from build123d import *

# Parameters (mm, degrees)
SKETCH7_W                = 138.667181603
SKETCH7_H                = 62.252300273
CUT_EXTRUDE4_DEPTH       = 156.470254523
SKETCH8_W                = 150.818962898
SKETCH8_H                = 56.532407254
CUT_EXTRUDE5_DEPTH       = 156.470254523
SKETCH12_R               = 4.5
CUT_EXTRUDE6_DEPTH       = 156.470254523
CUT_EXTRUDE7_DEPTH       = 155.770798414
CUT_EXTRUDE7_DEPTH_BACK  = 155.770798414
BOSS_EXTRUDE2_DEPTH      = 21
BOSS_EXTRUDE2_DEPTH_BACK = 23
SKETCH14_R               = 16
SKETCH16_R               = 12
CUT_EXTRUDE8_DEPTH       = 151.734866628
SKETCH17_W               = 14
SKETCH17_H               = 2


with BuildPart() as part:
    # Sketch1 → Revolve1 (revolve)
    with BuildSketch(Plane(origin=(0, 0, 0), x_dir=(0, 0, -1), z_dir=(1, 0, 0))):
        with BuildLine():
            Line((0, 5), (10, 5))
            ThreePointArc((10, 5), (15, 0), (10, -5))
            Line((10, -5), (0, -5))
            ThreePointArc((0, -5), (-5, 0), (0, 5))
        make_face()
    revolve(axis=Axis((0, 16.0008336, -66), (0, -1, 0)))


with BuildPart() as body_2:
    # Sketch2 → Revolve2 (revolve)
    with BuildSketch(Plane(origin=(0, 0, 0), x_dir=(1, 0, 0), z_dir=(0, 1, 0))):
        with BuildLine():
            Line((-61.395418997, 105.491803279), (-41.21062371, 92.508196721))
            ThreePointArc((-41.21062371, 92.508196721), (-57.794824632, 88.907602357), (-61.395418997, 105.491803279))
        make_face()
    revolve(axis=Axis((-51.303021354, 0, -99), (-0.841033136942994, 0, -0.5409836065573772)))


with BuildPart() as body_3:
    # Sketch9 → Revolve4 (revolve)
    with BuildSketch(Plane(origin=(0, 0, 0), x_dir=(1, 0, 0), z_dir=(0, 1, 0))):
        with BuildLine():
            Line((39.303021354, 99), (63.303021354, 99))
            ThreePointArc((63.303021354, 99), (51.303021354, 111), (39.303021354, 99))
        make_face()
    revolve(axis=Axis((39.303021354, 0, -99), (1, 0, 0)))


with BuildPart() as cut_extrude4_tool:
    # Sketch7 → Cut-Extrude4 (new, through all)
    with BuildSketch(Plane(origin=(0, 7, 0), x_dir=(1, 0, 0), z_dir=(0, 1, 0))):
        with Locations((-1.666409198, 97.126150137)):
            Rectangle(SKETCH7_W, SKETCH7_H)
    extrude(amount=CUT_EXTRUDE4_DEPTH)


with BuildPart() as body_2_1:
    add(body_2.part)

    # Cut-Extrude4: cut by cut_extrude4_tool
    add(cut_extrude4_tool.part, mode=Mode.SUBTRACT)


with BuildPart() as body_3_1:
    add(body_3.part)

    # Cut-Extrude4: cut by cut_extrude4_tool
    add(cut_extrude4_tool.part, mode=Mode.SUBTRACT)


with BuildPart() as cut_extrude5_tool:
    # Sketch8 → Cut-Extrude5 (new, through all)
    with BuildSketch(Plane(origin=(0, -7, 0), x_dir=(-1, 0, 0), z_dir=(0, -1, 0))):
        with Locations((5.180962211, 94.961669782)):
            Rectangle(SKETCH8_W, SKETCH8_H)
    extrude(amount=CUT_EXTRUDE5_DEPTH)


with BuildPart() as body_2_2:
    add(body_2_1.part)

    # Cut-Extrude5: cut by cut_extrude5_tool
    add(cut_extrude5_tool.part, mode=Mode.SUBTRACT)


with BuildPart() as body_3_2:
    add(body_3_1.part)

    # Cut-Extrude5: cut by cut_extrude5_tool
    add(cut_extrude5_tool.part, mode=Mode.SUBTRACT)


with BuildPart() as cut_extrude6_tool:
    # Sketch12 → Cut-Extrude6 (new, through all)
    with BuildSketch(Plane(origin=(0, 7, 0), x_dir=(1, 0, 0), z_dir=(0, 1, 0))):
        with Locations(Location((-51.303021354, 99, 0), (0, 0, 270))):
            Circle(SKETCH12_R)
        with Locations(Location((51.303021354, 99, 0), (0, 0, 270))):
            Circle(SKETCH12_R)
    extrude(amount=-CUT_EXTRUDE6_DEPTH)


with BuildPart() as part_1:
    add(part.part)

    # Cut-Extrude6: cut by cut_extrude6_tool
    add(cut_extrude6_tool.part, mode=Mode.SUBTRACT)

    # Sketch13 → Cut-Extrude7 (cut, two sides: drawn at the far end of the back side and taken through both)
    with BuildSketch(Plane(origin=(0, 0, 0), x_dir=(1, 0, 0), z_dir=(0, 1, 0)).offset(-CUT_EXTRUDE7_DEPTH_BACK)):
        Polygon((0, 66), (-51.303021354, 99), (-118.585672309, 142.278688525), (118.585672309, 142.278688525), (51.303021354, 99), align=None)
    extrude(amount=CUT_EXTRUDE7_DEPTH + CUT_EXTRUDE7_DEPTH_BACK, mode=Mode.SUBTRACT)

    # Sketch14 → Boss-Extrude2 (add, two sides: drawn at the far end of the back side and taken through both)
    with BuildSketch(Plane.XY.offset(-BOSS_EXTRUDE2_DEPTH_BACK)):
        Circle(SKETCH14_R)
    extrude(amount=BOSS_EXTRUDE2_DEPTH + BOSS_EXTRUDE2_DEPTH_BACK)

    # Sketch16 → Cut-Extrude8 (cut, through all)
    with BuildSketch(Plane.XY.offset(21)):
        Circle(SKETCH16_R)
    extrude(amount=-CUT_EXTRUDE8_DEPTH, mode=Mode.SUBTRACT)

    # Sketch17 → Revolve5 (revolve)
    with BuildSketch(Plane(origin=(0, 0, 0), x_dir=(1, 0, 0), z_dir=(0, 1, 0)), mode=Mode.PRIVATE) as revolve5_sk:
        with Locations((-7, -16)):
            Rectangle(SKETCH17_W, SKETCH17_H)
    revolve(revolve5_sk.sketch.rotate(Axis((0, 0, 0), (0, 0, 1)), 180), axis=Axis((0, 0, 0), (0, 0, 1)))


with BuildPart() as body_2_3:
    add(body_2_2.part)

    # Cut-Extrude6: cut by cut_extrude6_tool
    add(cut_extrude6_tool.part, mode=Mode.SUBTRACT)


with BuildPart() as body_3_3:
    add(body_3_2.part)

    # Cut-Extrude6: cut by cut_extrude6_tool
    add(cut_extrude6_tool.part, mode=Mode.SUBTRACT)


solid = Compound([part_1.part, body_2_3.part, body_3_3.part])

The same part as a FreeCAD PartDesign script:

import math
import FreeCAD as App
import Part
import Sketcher


def add_polygon(sketch, points):
    """Adds a closed chain of lines whose ends are joined by coincident constraints."""
    first, n = sketch.GeometryCount, len(points)
    for a, b in zip(points, points[1:] + points[:1]):
        sketch.addGeometry(Part.LineSegment(App.Vector(*a, 0), App.Vector(*b, 0)), False)
    for i in range(n):
        sketch.addConstraint(Sketcher.Constraint("Coincident", first + i, 2, first + (i + 1) % n, 1))

doc = App.newDocument("Part")
params = doc.addObject("Spreadsheet::Sheet", "Params")
for row, (alias, value) in enumerate([
    ("sketch1_radius", "5 mm"),
    ("revolution_angle", "360 deg"),
    ("sketch2_radius", "12 mm"),
    ("revolution2_angle", "360 deg"),
    ("sketch3_radius", "12 mm"),
    ("revolution3_angle", "360 deg"),
    ("pad1_length", "156.470255 mm"),
    ("pad2_length", "156.470255 mm"),
    ("sketch6_diameter", "9 mm"),
    ("pad3_length", "156.470255 mm"),
    ("sketch7_length", "61 mm"),
    ("sketch7_length2", "80 mm"),
    ("sketch8_diameter", "32 mm"),
    ("pad4_length", "21 mm"),
    ("pad4_length2", "23 mm"),
    ("sketch9_diameter", "24 mm"),
    ("sketch10_width", "14 mm"),
    ("sketch10_height", "2 mm"),
    ("revolution4_angle", "360 deg"),
], start=1):
    params.set(f"A{row}", alias)
    params.set(f"B{row}", "=" + value)
    params.setAlias(f"B{row}", alias)

body = doc.addObject("PartDesign::Body", "Body")

# Sketch on YZ plane
sketch1 = body.newObject("Sketcher::SketchObject", "Sketch")
sketch1.AttachmentSupport = (doc.getObject("YZ_Plane"), [""])
sketch1.MapMode = "FlatFace"
sketch1.addGeometry([
    Part.LineSegment(App.Vector(5, -10, 0), App.Vector(5, 0, 0)),
    Part.ArcOfCircle(Part.Circle(App.Vector(0, 0, 0), App.Vector(0, 0, 1), 5), math.radians(0), math.radians(180)),
    Part.LineSegment(App.Vector(-5, 0, 0), App.Vector(-5, -10, 0)),
    Part.ArcOfCircle(Part.Circle(App.Vector(0, -10, 0), App.Vector(0, 0, 1), 5), math.radians(180), math.radians(360)),
], False)
sketch1.addGeometry(Part.LineSegment(App.Vector(5, -66, 0), App.Vector(-5, -66, 0)), True)  # axis
sketch1.addConstraint([
    Sketcher.Constraint("Tangent", 0, 2, 1, 1),
    Sketcher.Constraint("Tangent", 1, 2, 2, 1),
    Sketcher.Constraint("Tangent", 2, 2, 3, 1),
    Sketcher.Constraint("Tangent", 3, 2, 0, 1),
    Sketcher.Constraint("Vertical", 0),
    Sketcher.Constraint("Vertical", 2),
    Sketcher.Constraint("Horizontal", 4),
    Sketcher.Constraint("Coincident", 1, 3, -1, 1),
    Sketcher.Constraint("Vertical", 3, 2, 4, 1),
    Sketcher.Constraint("Vertical", 2, 2, 4, 2),
    Sketcher.Constraint("Equal", 4, 0),
    Sketcher.Constraint("Radius", 1, 5.0),
    Sketcher.Constraint("DistanceY", 4, 1, -1, 1, 66.0),
])
sketch1.setExpression("Constraints[11]", "Params.sketch1_radius")
revolution = body.newObject("PartDesign::Revolution", "Revolution")
revolution.Profile = sketch1
revolution.ReferenceAxis = (sketch1, ["Axis0"])
revolution.setExpression("Angle", "Params.revolution_angle")
body2 = doc.addObject("PartDesign::Body", "Body001")

# Sketch on XZ plane
sketch2 = body2.newObject("Sketcher::SketchObject", "Sketch001")
sketch2.AttachmentSupport = (doc.getObject("XZ_Plane001"), [""])
sketch2.MapMode = "FlatFace"
sketch2.addGeometry([
    Part.LineSegment(App.Vector(-41, -93, 0), App.Vector(-61, -105, 0)),
    Part.ArcOfCircle(Part.Circle(App.Vector(-51, -99, 0), App.Vector(0, 0, 1), 12), math.radians(33), math.radians(213)),
], False)
sketch2.addGeometry(Part.LineSegment(App.Vector(-41, -93, 0), App.Vector(-61, -105, 0)), True)  # axis
sketch2.addConstraint([
    Sketcher.Constraint("Coincident", 0, 1, 1, 1),
    Sketcher.Constraint("Coincident", 1, 2, 0, 2),
    Sketcher.Constraint("Coincident", 2, 1, 0, 1),
    Sketcher.Constraint("Coincident", 2, 2, 1, 2),
    Sketcher.Constraint("Radius", 1, 12.0),
    Sketcher.Constraint("DistanceY", 1, 3, -1, 1, 99.0),
    Sketcher.Constraint("DistanceX", 1, 3, -1, 1, 51.303021),
    Sketcher.Constraint("DistanceX", 1, 2, -1, 1, 61.395419),
    Sketcher.Constraint("DistanceX", 0, 1, -1, 1, 41.210624),
])
sketch2.setExpression("Constraints[4]", "Params.sketch2_radius")
revolution2 = body2.newObject("PartDesign::Revolution", "Revolution001")
revolution2.Profile = sketch2
revolution2.ReferenceAxis = (sketch2, ["Axis0"])
revolution2.setExpression("Angle", "Params.revolution2_angle")
body3 = doc.addObject("PartDesign::Body", "Body002")

# Sketch on XZ plane
sketch3 = body3.newObject("Sketcher::SketchObject", "Sketch002")
sketch3.AttachmentSupport = (doc.getObject("XZ_Plane002"), [""])
sketch3.MapMode = "FlatFace"
sketch3.addGeometry([
    Part.LineSegment(App.Vector(39, -99, 0), App.Vector(63, -99, 0)),
    Part.ArcOfCircle(Part.Circle(App.Vector(51, -99, 0), App.Vector(0, 0, 1), 12), math.radians(180), math.radians(360)),
], False)
sketch3.addGeometry(Part.LineSegment(App.Vector(39, -99, 0), App.Vector(63, -99, 0)), True)  # axis
sketch3.addConstraint([
    Sketcher.Constraint("Coincident", 0, 1, 1, 1),
    Sketcher.Constraint("Coincident", 1, 2, 0, 2),
    Sketcher.Constraint("Horizontal", 0),
    Sketcher.Constraint("Horizontal", 2),
    Sketcher.Constraint("Coincident", 2, 1, 0, 1),
    Sketcher.Constraint("Horizontal", 1, 3, 0, 1),
    Sketcher.Constraint("Equal", 0, 2),
    Sketcher.Constraint("Radius", 1, 12.0),
    Sketcher.Constraint("DistanceY", 1, 3, -1, 1, 99.0),
    Sketcher.Constraint("DistanceX", -1, 1, 1, 3, 51.303021),
])
sketch3.setExpression("Constraints[7]", "Params.sketch3_radius")
revolution3 = body3.newObject("PartDesign::Revolution", "Revolution002")
revolution3.Profile = sketch3
revolution3.ReferenceAxis = (sketch3, ["Axis0"])
revolution3.setExpression("Angle", "Params.revolution3_angle")
body4 = doc.addObject("PartDesign::Body", "Body003")

# Sketch on XZ plane
sketch4 = body4.newObject("Sketcher::SketchObject", "Sketch003")
sketch4.AttachmentSupport = (doc.getObject("XZ_Plane003"), [""])
sketch4.MapMode = "FlatFace"
sketch4.AttachmentOffset = App.Placement(App.Vector(0, 0, -7), App.Rotation())
add_polygon(sketch4, [(-71, -128), (-71, -66), (68, -66), (68, -128)])  # lines 0-3
sketch4.addConstraint([
    Sketcher.Constraint("Vertical", 0),
    Sketcher.Constraint("Horizontal", 1),
    Sketcher.Constraint("Vertical", 2),
    Sketcher.Constraint("Horizontal", 3),
    Sketcher.Constraint("DistanceX", 0, 2, -1, 1, 71.0),
    Sketcher.Constraint("DistanceY", 0, 2, -1, 1, 66.0),
    Sketcher.Constraint("DistanceY", 0, 1, 0, 2, 62.2523),
    Sketcher.Constraint("DistanceX", 1, 1, 1, 2, 138.667182),
])
pad1 = body4.newObject("PartDesign::Pad", "Pad")
pad1.Profile = sketch4
pad1.setExpression("Length", "Params.pad1_length")
pad1.Reversed = True
doc.recompute()

body5 = doc.addObject("PartDesign::Body", "Body004")
body5.BaseFeature = body4
boolean = body2.newObject("PartDesign::Boolean", "Boolean")
boolean.Type = "Cut"
boolean.addObjects([body5])
doc.recompute()

boolean2 = body3.newObject("PartDesign::Boolean", "Boolean001")
boolean2.Type = "Cut"
boolean2.addObjects([body4])
body6 = doc.addObject("PartDesign::Body", "Body005")

# Sketch on XZ plane
sketch5 = body6.newObject("Sketcher::SketchObject", "Sketch004")
sketch5.AttachmentSupport = (doc.getObject("XZ_Plane005"), [""])
sketch5.MapMode = "FlatFace"
sketch5.AttachmentOffset = App.Placement(App.Vector(0, 0, 7), App.Rotation())
add_polygon(sketch5, [(70, -123), (70, -67), (-81, -67), (-81, -123)])  # lines 0-3
sketch5.addConstraint([
    Sketcher.Constraint("Vertical", 0),
    Sketcher.Constraint("Horizontal", 1),
    Sketcher.Constraint("Vertical", 2),
    Sketcher.Constraint("Horizontal", 3),
    Sketcher.Constraint("DistanceX", 1, 2, 1, 1, 150.818963),
    Sketcher.Constraint("DistanceY", 0, 1, 0, 2, 56.532407),
    Sketcher.Constraint("DistanceX", -1, 1, 0, 2, 70.228519),
    Sketcher.Constraint("DistanceY", 0, 2, -1, 1, 66.695466),
])
pad2 = body6.newObject("PartDesign::Pad", "Pad001")
pad2.Profile = sketch5
pad2.setExpression("Length", "Params.pad2_length")
doc.recompute()

body7 = doc.addObject("PartDesign::Body", "Body006")
body7.BaseFeature = body6
boolean3 = body2.newObject("PartDesign::Boolean", "Boolean002")
boolean3.Type = "Cut"
boolean3.addObjects([body7])
doc.recompute()

boolean4 = body3.newObject("PartDesign::Boolean", "Boolean003")
boolean4.Type = "Cut"
boolean4.addObjects([body6])
body8 = doc.addObject("PartDesign::Body", "Body007")
body8.AllowCompound = True

# Sketch on XZ plane
sketch6 = body8.newObject("Sketcher::SketchObject", "Sketch005")
sketch6.AttachmentSupport = (doc.getObject("XZ_Plane007"), [""])
sketch6.MapMode = "FlatFace"
sketch6.AttachmentOffset = App.Placement(App.Vector(0, 0, -7), App.Rotation())
sketch6.addGeometry([
    Part.Circle(App.Vector(-51.3, -99, 0), App.Vector(0, 0, 1), 4.5),
    Part.Circle(App.Vector(51.3, -99, 0), App.Vector(0, 0, 1), 4.5),
], False)
sketch6.addConstraint([
    Sketcher.Constraint("Equal", 0, 1),
    Sketcher.Constraint("Symmetric", 0, 3, 1, 3, -2),
    Sketcher.Constraint("Diameter", 0, 9.0),
    Sketcher.Constraint("DistanceY", 0, 3, -1, 1, 99.0),
    Sketcher.Constraint("DistanceX", 0, 3, -1, 1, 51.303021),
])
sketch6.setExpression("Constraints[2]", "Params.sketch6_diameter")
pad3 = body8.newObject("PartDesign::Pad", "Pad002")
pad3.Profile = sketch6
pad3.setExpression("Length", "Params.pad3_length")
doc.recompute()

body9 = doc.addObject("PartDesign::Body", "Body008")
body9.BaseFeature = body8
boolean5 = body.newObject("PartDesign::Boolean", "Boolean004")
boolean5.Type = "Cut"
boolean5.addObjects([body9])
doc.recompute()

# Sketch on XZ plane
sketch7 = body.newObject("Sketcher::SketchObject", "Sketch006")
sketch7.AttachmentSupport = (doc.getObject("XZ_Plane"), [""])
sketch7.MapMode = "FlatFace"
add_polygon(sketch7, [(-51, -99), (0, -66), (51, -99), (119, -142), (-119, -142)])  # lines 0-4
sketch7.addConstraint([
    Sketcher.Constraint("Horizontal", 3),
    Sketcher.Constraint("Symmetric", 1, 2, 4, 2, -2),
    Sketcher.Constraint("PointOnObject", 0, 2, -2),
    Sketcher.Constraint("Parallel", 1, 2),
    Sketcher.Constraint("Parallel", 0, 4),
    Sketcher.Constraint("Distance", 0, 61.0),
    Sketcher.Constraint("Distance", 2, 80.0),
    Sketcher.Constraint("DistanceY", 0, 2, -1, 1, 66.0),
    Sketcher.Constraint("DistanceY", 1, 2, -1, 1, 99.0),
])
sketch7.setExpression("Constraints[10]", "Params.sketch7_length")
sketch7.setExpression("Constraints[11]", "Params.sketch7_length2")
pocket1 = body.newObject("PartDesign::Pocket", "Pocket")
pocket1.Profile = sketch7
pocket1.Type = "ThroughAll"
pocket1.Midplane = True

# Sketch on XY plane
sketch8 = body.newObject("Sketcher::SketchObject", "Sketch007")
sketch8.AttachmentSupport = (doc.getObject("XY_Plane"), [""])
sketch8.MapMode = "FlatFace"
sketch8.addGeometry(Part.Circle(App.Vector(0, 0, 0), App.Vector(0, 0, 1), 16), False)
sketch8.addConstraint([
    Sketcher.Constraint("Coincident", 0, 3, -1, 1),
    Sketcher.Constraint("Diameter", 0, 32.0),
])
sketch8.setExpression("Constraints[1]", "Params.sketch8_diameter")
pad4 = body.newObject("PartDesign::Pad", "Pad003")
pad4.Profile = sketch8
pad4.Type = "TwoLengths"
pad4.setExpression("Length", "Params.pad4_length")
pad4.setExpression("Length2", "Params.pad4_length2")

# Sketch on XY plane
sketch9 = body.newObject("Sketcher::SketchObject", "Sketch008")
sketch9.AttachmentSupport = (doc.getObject("XY_Plane"), [""])
sketch9.MapMode = "FlatFace"
sketch9.AttachmentOffset = App.Placement(App.Vector(0, 0, 21), App.Rotation())
sketch9.addGeometry(Part.Circle(App.Vector(0, 0, 0), App.Vector(0, 0, 1), 12), False)
sketch9.addConstraint([
    Sketcher.Constraint("Coincident", 0, 3, -1, 1),
    Sketcher.Constraint("Diameter", 0, 24.0),
])
sketch9.setExpression("Constraints[1]", "Params.sketch9_diameter")
pocket2 = body.newObject("PartDesign::Pocket", "Pocket001")
pocket2.Profile = sketch9
pocket2.Type = "ThroughAll"

# Sketch on XZ plane
sketch10 = body.newObject("Sketcher::SketchObject", "Sketch009")
sketch10.AttachmentSupport = (doc.getObject("XZ_Plane"), [""])
sketch10.MapMode = "FlatFace"
add_polygon(sketch10, [(-14, 15), (-14, 17), (0, 17), (0, 15)])  # lines 0-3
sketch10.addConstraint([
    Sketcher.Constraint("Vertical", 0),
    Sketcher.Constraint("Horizontal", 1),
    Sketcher.Constraint("Vertical", 2),
    Sketcher.Constraint("Horizontal", 3),
    Sketcher.Constraint("PointOnObject", 1, 2, -2),
    Sketcher.Constraint("DistanceX", 1, 1, 1, 2, 14.0),
    Sketcher.Constraint("DistanceY", 0, 1, 0, 2, 2.0),
    Sketcher.Constraint("DistanceY", -1, 1, 0, 2, 17.0),
])
sketch10.setExpression("Constraints[9]", "Params.sketch10_width")
sketch10.setExpression("Constraints[10]", "Params.sketch10_height")
revolution4 = body.newObject("PartDesign::Revolution", "Revolution003")
revolution4.Profile = sketch10
revolution4.ReferenceAxis = (sketch10, ["V_Axis"])
revolution4.setExpression("Angle", "Params.revolution4_angle")
doc.recompute()

body10 = doc.addObject("PartDesign::Body", "Body009")
body10.BaseFeature = body8
boolean6 = body2.newObject("PartDesign::Boolean", "Boolean005")
boolean6.Type = "Cut"
boolean6.addObjects([body10])
doc.recompute()

boolean7 = body3.newObject("PartDesign::Boolean", "Boolean006")
boolean7.Type = "Cut"
boolean7.addObjects([body8])

doc.recompute()
